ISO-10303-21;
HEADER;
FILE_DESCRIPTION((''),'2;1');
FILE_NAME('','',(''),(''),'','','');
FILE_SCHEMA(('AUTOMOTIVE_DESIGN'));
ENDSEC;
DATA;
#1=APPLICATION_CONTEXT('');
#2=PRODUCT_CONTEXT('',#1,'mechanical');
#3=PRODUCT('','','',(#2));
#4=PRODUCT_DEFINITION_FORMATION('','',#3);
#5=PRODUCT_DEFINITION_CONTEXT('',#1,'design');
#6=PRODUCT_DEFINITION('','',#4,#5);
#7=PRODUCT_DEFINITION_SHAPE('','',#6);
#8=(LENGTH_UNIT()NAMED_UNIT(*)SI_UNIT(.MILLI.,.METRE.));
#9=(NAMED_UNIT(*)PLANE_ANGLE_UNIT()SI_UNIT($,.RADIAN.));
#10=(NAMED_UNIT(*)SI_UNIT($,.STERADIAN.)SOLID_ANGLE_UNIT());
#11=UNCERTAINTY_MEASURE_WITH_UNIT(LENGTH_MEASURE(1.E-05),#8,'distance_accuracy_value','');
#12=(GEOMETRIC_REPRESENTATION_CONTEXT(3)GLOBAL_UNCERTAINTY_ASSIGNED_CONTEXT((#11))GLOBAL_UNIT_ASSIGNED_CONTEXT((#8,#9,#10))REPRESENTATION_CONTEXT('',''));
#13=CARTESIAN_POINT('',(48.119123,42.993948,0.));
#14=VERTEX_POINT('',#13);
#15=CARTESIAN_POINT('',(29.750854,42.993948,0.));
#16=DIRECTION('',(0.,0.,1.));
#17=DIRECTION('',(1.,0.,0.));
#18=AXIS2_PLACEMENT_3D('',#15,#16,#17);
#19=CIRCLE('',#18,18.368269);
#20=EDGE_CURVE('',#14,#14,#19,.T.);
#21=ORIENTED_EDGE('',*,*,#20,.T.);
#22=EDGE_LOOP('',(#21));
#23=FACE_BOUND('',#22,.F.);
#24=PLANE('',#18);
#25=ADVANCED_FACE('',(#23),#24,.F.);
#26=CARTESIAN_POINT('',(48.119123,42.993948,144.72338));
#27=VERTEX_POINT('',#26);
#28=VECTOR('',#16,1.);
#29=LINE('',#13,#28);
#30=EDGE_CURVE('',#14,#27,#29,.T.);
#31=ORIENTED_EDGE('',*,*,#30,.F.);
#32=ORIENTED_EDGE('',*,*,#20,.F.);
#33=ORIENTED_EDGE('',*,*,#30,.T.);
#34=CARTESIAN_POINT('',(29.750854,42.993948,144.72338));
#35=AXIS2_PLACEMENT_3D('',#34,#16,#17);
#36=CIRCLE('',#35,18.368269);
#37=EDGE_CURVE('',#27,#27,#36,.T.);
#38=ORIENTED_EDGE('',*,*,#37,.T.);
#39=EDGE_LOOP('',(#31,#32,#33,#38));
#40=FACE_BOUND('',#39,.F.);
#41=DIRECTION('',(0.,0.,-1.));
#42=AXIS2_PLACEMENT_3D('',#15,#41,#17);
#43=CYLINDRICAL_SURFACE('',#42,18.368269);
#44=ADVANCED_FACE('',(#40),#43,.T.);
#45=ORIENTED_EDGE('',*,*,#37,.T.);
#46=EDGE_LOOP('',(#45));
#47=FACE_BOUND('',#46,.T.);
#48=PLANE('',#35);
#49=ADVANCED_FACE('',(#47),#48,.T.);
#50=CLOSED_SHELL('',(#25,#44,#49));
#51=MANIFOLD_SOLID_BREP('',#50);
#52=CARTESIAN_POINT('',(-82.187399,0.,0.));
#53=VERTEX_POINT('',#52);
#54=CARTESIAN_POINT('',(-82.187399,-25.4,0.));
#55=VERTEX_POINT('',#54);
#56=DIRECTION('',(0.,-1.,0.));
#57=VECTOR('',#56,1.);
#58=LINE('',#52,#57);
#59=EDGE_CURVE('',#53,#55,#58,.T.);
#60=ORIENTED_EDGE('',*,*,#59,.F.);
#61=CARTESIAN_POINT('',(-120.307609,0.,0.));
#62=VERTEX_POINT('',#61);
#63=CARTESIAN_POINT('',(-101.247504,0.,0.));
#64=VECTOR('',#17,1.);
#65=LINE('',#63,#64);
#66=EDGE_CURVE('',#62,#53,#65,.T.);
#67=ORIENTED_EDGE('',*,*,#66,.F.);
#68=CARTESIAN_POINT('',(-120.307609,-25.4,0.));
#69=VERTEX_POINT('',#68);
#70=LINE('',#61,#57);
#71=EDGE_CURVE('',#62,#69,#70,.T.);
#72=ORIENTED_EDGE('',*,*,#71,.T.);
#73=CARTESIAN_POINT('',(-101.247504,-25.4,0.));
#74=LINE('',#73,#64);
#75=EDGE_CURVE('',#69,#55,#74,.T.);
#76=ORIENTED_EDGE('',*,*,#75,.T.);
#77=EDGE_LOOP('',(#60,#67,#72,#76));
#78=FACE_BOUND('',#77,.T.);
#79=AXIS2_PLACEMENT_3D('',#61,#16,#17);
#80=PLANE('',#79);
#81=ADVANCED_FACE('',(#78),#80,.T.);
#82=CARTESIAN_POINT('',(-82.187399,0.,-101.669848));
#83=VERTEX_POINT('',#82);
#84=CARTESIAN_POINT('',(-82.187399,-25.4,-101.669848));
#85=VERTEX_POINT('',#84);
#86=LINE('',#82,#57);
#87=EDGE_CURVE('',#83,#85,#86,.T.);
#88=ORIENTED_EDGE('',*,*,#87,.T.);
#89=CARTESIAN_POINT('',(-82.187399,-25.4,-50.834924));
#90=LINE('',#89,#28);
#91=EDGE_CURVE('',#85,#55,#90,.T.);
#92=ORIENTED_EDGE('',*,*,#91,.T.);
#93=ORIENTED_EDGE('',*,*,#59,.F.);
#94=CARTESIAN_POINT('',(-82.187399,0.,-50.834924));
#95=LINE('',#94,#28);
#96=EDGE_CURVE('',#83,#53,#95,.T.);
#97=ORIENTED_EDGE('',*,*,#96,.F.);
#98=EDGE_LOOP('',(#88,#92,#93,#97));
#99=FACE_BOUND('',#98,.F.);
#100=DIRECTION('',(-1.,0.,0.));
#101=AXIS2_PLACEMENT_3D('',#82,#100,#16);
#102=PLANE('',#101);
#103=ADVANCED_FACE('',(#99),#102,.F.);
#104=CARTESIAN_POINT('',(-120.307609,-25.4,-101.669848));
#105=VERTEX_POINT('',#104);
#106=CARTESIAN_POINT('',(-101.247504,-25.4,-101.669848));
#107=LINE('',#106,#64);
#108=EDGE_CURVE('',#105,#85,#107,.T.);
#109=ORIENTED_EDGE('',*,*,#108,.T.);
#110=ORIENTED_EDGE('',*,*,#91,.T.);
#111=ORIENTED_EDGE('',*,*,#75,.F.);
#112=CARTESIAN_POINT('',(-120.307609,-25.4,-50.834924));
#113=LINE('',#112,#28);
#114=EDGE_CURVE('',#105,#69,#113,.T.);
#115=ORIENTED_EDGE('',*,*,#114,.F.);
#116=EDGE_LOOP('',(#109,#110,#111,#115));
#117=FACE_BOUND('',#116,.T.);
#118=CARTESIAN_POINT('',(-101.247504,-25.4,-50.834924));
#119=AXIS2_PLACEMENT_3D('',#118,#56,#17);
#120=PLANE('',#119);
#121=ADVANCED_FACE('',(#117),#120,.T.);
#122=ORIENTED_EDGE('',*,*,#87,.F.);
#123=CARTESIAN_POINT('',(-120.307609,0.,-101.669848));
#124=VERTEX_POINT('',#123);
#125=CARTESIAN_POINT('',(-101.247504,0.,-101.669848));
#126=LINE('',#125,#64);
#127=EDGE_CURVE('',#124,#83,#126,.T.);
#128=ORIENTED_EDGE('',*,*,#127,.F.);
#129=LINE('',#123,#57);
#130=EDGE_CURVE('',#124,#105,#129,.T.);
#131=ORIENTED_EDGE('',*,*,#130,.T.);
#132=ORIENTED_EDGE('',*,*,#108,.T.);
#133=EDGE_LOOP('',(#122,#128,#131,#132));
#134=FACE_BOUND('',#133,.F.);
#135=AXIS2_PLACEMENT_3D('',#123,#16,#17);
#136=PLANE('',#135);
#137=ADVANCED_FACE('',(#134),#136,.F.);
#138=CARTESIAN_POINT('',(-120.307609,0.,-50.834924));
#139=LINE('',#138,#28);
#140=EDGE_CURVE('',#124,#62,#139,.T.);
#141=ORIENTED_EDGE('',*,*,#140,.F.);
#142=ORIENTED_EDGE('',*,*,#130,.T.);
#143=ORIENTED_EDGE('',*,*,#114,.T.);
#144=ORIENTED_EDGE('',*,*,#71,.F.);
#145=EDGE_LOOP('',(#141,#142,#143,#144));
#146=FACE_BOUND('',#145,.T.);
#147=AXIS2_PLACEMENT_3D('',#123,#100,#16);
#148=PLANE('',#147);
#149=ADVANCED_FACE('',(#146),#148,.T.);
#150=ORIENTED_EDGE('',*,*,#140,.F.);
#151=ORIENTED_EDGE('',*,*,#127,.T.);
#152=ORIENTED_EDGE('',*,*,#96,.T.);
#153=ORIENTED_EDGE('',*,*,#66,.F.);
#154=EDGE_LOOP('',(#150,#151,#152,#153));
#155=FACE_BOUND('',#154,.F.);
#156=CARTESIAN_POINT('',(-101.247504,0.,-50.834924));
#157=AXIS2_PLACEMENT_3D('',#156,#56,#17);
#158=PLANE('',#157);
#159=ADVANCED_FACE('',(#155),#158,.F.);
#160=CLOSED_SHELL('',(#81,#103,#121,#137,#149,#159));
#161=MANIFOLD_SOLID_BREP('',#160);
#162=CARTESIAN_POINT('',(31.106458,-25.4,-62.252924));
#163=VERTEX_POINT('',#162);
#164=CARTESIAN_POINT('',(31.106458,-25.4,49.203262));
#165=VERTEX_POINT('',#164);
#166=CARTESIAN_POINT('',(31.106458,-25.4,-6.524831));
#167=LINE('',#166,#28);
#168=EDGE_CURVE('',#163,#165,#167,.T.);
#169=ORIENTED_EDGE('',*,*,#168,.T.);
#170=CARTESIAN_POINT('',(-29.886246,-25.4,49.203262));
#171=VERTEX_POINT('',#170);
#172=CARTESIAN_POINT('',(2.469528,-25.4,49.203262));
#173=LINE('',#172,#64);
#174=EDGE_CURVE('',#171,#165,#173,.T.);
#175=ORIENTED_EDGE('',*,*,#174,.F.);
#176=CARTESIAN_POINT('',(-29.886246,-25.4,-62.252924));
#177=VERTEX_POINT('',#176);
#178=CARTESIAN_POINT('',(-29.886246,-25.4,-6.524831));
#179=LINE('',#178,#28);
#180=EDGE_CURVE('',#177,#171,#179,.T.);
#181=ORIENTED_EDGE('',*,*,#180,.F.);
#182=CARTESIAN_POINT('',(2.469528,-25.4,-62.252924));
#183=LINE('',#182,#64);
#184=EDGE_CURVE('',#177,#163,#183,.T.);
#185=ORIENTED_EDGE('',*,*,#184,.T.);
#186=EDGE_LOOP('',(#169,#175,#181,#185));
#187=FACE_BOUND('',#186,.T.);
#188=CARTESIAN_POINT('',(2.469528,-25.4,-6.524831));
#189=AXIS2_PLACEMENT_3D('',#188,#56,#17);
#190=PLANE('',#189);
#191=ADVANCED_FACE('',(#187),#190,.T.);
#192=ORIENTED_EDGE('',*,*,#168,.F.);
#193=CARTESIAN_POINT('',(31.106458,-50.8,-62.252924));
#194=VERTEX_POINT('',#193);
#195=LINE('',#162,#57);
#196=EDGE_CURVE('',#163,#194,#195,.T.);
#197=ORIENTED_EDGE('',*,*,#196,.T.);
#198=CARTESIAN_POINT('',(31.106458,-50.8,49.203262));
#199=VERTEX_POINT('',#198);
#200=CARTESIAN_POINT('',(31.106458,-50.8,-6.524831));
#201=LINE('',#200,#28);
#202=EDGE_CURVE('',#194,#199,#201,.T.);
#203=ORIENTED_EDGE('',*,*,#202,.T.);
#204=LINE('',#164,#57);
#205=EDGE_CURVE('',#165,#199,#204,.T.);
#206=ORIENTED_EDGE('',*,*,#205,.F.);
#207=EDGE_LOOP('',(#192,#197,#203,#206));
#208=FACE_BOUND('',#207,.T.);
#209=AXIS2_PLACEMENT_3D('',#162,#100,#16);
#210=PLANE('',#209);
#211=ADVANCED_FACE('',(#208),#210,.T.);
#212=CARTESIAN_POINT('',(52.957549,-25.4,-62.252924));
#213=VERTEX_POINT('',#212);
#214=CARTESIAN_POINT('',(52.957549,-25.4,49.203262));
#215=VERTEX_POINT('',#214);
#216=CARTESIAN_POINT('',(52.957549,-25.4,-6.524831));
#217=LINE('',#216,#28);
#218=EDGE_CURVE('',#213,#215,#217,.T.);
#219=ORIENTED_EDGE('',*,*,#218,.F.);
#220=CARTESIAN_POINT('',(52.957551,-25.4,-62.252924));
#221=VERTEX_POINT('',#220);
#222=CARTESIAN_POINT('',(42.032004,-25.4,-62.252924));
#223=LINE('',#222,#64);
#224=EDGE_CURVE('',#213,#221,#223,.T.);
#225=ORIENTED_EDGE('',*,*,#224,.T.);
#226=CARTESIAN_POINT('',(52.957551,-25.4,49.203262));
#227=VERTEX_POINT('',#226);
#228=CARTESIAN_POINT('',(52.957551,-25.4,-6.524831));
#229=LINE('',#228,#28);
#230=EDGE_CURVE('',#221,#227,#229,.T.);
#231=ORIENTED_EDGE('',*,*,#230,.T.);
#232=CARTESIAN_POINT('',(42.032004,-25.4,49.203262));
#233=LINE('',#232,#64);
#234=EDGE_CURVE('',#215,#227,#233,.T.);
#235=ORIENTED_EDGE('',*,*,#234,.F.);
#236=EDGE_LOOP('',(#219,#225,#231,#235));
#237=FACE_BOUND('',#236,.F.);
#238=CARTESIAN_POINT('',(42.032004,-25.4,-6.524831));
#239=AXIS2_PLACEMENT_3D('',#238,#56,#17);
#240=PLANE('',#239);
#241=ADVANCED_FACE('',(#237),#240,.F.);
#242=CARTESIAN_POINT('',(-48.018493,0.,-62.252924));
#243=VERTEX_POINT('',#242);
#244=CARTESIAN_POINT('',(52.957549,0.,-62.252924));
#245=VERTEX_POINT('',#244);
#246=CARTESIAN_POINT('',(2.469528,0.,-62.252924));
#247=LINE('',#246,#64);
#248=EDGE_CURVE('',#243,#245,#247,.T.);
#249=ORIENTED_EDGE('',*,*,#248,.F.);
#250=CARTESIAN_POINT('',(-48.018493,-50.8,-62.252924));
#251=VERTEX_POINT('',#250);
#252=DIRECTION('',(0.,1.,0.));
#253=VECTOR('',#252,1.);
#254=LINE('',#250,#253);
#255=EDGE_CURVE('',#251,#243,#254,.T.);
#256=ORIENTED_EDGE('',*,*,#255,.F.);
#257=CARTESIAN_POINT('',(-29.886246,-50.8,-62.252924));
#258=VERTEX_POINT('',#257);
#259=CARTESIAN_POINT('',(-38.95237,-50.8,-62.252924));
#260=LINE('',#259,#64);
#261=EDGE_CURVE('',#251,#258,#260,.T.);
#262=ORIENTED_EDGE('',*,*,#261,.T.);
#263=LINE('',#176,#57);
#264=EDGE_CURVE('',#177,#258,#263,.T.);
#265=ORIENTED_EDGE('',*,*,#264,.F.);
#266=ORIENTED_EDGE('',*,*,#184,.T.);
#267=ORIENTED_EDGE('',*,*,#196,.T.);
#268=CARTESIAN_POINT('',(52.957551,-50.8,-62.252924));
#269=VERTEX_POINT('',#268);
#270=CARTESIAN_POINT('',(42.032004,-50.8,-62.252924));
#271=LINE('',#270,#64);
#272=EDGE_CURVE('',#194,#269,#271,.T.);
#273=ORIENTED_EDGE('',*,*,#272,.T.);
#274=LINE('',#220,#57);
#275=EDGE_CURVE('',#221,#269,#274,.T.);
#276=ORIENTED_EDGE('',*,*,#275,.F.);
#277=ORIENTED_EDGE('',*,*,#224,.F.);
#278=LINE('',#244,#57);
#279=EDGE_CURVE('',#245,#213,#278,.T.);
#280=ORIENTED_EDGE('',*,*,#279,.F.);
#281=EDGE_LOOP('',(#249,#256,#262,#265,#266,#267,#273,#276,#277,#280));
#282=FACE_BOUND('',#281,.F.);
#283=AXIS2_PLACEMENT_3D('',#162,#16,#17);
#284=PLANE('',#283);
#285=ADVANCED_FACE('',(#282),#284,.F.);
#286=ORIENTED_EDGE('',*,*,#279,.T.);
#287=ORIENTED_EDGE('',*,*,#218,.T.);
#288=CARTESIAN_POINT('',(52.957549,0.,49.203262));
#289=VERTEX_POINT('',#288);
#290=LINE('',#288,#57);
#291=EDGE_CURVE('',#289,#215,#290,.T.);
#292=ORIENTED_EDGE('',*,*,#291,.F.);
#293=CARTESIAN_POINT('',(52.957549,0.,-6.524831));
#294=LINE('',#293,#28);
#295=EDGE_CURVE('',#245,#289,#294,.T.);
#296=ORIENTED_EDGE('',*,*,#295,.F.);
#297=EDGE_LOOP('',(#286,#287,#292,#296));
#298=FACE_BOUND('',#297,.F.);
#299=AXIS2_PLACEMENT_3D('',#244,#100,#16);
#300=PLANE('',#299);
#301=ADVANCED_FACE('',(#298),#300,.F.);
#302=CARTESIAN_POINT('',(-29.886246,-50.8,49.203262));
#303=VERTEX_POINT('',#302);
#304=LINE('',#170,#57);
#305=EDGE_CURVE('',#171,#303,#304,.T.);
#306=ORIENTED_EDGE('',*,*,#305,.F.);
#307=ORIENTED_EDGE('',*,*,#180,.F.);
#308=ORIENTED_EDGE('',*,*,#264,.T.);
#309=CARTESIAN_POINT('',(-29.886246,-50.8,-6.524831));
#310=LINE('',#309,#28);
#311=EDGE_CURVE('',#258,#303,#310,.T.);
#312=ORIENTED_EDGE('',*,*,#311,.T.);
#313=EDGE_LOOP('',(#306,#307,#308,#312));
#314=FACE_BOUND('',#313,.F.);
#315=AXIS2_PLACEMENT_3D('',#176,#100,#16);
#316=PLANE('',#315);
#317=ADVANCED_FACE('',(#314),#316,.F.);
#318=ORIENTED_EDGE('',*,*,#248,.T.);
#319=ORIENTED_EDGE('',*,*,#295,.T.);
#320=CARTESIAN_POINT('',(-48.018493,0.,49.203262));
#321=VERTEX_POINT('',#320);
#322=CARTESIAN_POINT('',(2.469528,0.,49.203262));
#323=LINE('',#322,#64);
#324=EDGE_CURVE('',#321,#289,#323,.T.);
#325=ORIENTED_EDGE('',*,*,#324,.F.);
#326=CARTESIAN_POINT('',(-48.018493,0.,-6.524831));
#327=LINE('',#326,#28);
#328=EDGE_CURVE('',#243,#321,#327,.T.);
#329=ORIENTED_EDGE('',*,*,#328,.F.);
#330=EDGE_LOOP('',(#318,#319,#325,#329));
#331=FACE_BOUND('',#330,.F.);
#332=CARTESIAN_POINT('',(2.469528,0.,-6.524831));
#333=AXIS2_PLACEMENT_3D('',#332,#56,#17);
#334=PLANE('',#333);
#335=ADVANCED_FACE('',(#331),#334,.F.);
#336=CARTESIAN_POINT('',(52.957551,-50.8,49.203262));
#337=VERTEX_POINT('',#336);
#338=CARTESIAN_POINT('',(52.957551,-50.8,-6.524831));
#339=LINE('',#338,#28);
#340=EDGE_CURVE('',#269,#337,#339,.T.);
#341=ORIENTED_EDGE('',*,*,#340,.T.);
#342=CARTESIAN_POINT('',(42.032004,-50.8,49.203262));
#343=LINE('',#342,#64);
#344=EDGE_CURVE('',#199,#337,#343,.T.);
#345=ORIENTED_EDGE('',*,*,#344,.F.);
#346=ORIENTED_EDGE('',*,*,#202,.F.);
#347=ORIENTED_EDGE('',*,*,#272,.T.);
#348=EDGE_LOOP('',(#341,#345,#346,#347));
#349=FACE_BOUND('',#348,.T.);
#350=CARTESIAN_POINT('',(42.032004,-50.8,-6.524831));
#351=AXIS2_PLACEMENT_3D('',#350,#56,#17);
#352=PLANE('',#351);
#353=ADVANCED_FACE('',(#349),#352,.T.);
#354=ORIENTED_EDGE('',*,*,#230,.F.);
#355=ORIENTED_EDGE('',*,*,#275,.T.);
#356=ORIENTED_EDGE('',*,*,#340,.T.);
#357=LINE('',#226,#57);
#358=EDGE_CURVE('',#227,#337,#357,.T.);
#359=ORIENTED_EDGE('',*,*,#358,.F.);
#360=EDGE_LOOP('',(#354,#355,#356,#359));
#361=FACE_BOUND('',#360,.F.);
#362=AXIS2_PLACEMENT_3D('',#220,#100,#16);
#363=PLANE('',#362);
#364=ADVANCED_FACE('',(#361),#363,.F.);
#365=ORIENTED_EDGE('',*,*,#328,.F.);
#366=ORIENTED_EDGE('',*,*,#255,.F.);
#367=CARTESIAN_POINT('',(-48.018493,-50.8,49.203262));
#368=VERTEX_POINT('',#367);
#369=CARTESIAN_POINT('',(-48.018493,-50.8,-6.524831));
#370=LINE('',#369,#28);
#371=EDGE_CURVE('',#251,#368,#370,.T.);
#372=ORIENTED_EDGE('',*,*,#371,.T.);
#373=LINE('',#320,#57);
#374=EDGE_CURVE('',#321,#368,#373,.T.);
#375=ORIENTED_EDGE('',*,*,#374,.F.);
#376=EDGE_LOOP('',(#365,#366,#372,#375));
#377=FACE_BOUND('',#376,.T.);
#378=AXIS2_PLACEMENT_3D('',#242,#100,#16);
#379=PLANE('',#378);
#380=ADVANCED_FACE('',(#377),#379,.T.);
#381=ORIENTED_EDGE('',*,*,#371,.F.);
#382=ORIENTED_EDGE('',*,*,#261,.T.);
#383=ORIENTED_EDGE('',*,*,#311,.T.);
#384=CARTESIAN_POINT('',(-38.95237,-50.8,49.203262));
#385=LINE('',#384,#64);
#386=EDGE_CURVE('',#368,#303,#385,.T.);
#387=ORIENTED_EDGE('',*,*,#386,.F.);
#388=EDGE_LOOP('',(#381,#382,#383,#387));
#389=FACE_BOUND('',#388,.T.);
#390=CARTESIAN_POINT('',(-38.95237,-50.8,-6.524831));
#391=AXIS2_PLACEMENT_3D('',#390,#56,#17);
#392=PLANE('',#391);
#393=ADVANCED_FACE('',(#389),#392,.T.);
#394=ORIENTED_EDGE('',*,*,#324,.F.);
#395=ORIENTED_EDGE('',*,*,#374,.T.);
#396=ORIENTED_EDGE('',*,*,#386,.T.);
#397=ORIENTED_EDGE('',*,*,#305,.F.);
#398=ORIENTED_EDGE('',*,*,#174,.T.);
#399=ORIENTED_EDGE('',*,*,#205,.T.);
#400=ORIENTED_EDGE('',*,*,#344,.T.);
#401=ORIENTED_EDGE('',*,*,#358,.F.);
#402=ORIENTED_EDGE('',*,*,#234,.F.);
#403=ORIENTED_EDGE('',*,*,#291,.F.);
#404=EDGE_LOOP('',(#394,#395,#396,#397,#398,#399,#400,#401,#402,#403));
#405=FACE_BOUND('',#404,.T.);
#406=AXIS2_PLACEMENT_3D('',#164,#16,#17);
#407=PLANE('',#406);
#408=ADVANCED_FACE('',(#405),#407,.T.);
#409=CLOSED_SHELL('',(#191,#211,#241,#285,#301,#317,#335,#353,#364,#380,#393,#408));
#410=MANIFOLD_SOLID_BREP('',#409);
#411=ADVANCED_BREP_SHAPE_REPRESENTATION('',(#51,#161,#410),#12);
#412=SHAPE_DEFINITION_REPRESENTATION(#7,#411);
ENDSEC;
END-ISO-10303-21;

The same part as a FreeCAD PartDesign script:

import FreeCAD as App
import Part
import Sketcher
Q = App.Units.Quantity

doc = App.newDocument("Part")
body = doc.addObject("PartDesign::Body", "Body")

sketch1 = doc.addObject("Sketcher::SketchObject", "Sketch")
body.addObject(sketch1)
sketch1.AttachmentSupport = (doc.XZ_Plane, [""])
sketch1.MapMode = "FlatFace"
sketch1.addGeometry([
    Part.LineSegment(App.Vector(-48, 49, 0), App.Vector(-48, -62, 0)),
    Part.LineSegment(App.Vector(-48, -62, 0), App.Vector(53, -62, 0)),
    Part.LineSegment(App.Vector(53, -62, 0), App.Vector(53, 49, 0)),
    Part.LineSegment(App.Vector(53, 49, 0), App.Vector(-48, 49, 0)),
], False)
sketch1.addConstraint([
    Sketcher.Constraint("Coincident", 0, 2, 1, 1),
    Sketcher.Constraint("Coincident", 1, 2, 2, 1),
    Sketcher.Constraint("Coincident", 2, 2, 3, 1),
    Sketcher.Constraint("Coincident", 3, 2, 0, 1),
    Sketcher.Constraint("Vertical", 0),
    Sketcher.Constraint("Horizontal", 1),
    Sketcher.Constraint("Vertical", 2),
    Sketcher.Constraint("Horizontal", 3),
    Sketcher.Constraint("DistanceX", 1, 1, 1, 2, Q("100.976043 mm")),
    Sketcher.Constraint("DistanceY", 0, 2, 0, 1, Q("111.456186 mm")),
    Sketcher.Constraint("DistanceX", -1, 1, 1, 2, Q("52.957549 mm")),
    Sketcher.Constraint("DistanceY", 0, 2, -1, 1, Q("62.252924 mm")),
])
pad1 = doc.addObject("PartDesign::Pad", "Pad")
body.addObject(pad1)
pad1.Profile = sketch1
pad1.Length = Q("1 in")

sketch2 = doc.addObject("Sketcher::SketchObject", "Sketch001")
body.addObject(sketch2)
sketch2.AttachmentSupport = (doc.XZ_Plane, [""])
sketch2.MapMode = "FlatFace"
sketch2.AttachmentOffset = App.Placement(App.Vector(0, 0, 1 * 25.4), App.Rotation())
sketch2.addGeometry([
    Part.LineSegment(App.Vector(31, 49, 0), App.Vector(31, -62, 0)),
    Part.LineSegment(App.Vector(31, -62, 0), App.Vector(53, -62, 0)),
    Part.LineSegment(App.Vector(53, -62, 0), App.Vector(53, 49, 0)),
    Part.LineSegment(App.Vector(53, 49, 0), App.Vector(31, 49, 0)),
    Part.LineSegment(App.Vector(-48, 49, 0), App.Vector(-48, -62, 0)),
    Part.LineSegment(App.Vector(-48, -62, 0), App.Vector(-30, -62, 0)),
    Part.LineSegment(App.Vector(-30, -62, 0), App.Vector(-30, 49, 0)),
    Part.LineSegment(App.Vector(-30, 49, 0), App.Vector(-48, 49, 0)),
], False)
sketch2.addConstraint([
    Sketcher.Constraint("Coincident", 0, 2, 1, 1),
    Sketcher.Constraint("Coincident", 1, 2, 2, 1),
    Sketcher.Constraint("Coincident", 2, 2, 3, 1),
    Sketcher.Constraint("Coincident", 3, 2, 0, 1),
    Sketcher.Constraint("Coincident", 4, 2, 5, 1),
    Sketcher.Constraint("Coincident", 5, 2, 6, 1),
    Sketcher.Constraint("Coincident", 6, 2, 7, 1),
    Sketcher.Constraint("Coincident", 7, 2, 4, 1),
    Sketcher.Constraint("Vertical", 0),
    Sketcher.Constraint("Horizontal", 1),
    Sketcher.Constraint("Vertical", 2),
    Sketcher.Constraint("Horizontal", 3),
    Sketcher.Constraint("Vertical", 4),
    Sketcher.Constraint("Horizontal", 5),
    Sketcher.Constraint("Vertical", 6),
    Sketcher.Constraint("Horizontal", 7),
    Sketcher.Constraint("Horizontal", 1, 2, 4, 2),
    Sketcher.Constraint("Horizontal", 3, 2, 6, 2),
    Sketcher.Constraint("DistanceX", 1, 1, 1, 2, Q("21.851093 mm")),
    Sketcher.Constraint("DistanceX", 5, 1, 5, 2, Q("18.132247 mm")),
    Sketcher.Constraint("DistanceY", 0, 2, 0, 1, Q("111.456186 mm")),
    Sketcher.Constraint("DistanceX", -1, 1, 1, 2, Q("52.957551 mm")),
    Sketcher.Constraint("DistanceX", 4, 2, 0, 2, Q("79.124951 mm")),
    Sketcher.Constraint("DistanceY", 0, 2, -1, 1, Q("62.252924 mm")),
])
pad2 = doc.addObject("PartDesign::Pad", "Pad001")
body.addObject(pad2)
pad2.Profile = sketch2
pad2.Length = Q("1 in")
body2 = doc.addObject("PartDesign::Body", "Body001")

sketch3 = doc.addObject("Sketcher::SketchObject", "Sketch002")
body2.addObject(sketch3)
sketch3.AttachmentSupport = (doc.getObject("XZ_Plane001"), [""])
sketch3.MapMode = "FlatFace"
sketch3.addGeometry([
    Part.LineSegment(App.Vector(-120, 0, 0), App.Vector(-120, -102, 0)),
    Part.LineSegment(App.Vector(-120, -102, 0), App.Vector(-82, -102, 0)),
    Part.LineSegment(App.Vector(-82, -102, 0), App.Vector(-82, 0, 0)),
    Part.LineSegment(App.Vector(-82, 0, 0), App.Vector(-120, 0, 0)),
], False)
sketch3.addConstraint([
    Sketcher.Constraint("Coincident", 0, 2, 1, 1),
    Sketcher.Constraint("Coincident", 1, 2, 2, 1),
    Sketcher.Constraint("Coincident", 2, 2, 3, 1),
    Sketcher.Constraint("Coincident", 3, 2, 0, 1),
    Sketcher.Constraint("Vertical", 0),
    Sketcher.Constraint("Horizontal", 1),
    Sketcher.Constraint("Vertical", 2),
    Sketcher.Constraint("Horizontal", 3),
    Sketcher.Constraint("PointOnObject", 2, 2, -1),
    Sketcher.Constraint("DistanceX", 1, 1, 1, 2, Q("38.12021 mm")),
    Sketcher.Constraint("DistanceY", 0, 2, 0, 1, Q("101.669848 mm")),
    Sketcher.Constraint("DistanceX", 1, 2, -1, 1, Q("82.187399 mm")),
])
pad3 = doc.addObject("PartDesign::Pad", "Pad002")
body2.addObject(pad3)
pad3.Profile = sketch3
pad3.Length = Q("1 in")
body3 = doc.addObject("PartDesign::Body", "Body002")

sketch4 = doc.addObject("Sketcher::SketchObject", "Sketch003")
body3.addObject(sketch4)
sketch4.AttachmentSupport = (doc.getObject("XY_Plane002"), [""])
sketch4.MapMode = "FlatFace"
sketch4.addGeometry(Part.Circle(App.Vector(30, 43, 0), App.Vector(0, 0, 1), 18), False)
sketch4.addConstraint([
    Sketcher.Constraint("Diameter", 0, Q("36.736538 mm")),
    Sketcher.Constraint("DistanceY", -1, 1, 0, 3, Q("42.993948 mm")),
    Sketcher.Constraint("DistanceX", -1, 1, 0, 3, Q("29.750854 mm")),
])
pad4 = doc.addObject("PartDesign::Pad", "Pad003")
body3.addObject(pad4)
pad4.Profile = sketch4
pad4.Length = 144.72338

doc.recompute()
